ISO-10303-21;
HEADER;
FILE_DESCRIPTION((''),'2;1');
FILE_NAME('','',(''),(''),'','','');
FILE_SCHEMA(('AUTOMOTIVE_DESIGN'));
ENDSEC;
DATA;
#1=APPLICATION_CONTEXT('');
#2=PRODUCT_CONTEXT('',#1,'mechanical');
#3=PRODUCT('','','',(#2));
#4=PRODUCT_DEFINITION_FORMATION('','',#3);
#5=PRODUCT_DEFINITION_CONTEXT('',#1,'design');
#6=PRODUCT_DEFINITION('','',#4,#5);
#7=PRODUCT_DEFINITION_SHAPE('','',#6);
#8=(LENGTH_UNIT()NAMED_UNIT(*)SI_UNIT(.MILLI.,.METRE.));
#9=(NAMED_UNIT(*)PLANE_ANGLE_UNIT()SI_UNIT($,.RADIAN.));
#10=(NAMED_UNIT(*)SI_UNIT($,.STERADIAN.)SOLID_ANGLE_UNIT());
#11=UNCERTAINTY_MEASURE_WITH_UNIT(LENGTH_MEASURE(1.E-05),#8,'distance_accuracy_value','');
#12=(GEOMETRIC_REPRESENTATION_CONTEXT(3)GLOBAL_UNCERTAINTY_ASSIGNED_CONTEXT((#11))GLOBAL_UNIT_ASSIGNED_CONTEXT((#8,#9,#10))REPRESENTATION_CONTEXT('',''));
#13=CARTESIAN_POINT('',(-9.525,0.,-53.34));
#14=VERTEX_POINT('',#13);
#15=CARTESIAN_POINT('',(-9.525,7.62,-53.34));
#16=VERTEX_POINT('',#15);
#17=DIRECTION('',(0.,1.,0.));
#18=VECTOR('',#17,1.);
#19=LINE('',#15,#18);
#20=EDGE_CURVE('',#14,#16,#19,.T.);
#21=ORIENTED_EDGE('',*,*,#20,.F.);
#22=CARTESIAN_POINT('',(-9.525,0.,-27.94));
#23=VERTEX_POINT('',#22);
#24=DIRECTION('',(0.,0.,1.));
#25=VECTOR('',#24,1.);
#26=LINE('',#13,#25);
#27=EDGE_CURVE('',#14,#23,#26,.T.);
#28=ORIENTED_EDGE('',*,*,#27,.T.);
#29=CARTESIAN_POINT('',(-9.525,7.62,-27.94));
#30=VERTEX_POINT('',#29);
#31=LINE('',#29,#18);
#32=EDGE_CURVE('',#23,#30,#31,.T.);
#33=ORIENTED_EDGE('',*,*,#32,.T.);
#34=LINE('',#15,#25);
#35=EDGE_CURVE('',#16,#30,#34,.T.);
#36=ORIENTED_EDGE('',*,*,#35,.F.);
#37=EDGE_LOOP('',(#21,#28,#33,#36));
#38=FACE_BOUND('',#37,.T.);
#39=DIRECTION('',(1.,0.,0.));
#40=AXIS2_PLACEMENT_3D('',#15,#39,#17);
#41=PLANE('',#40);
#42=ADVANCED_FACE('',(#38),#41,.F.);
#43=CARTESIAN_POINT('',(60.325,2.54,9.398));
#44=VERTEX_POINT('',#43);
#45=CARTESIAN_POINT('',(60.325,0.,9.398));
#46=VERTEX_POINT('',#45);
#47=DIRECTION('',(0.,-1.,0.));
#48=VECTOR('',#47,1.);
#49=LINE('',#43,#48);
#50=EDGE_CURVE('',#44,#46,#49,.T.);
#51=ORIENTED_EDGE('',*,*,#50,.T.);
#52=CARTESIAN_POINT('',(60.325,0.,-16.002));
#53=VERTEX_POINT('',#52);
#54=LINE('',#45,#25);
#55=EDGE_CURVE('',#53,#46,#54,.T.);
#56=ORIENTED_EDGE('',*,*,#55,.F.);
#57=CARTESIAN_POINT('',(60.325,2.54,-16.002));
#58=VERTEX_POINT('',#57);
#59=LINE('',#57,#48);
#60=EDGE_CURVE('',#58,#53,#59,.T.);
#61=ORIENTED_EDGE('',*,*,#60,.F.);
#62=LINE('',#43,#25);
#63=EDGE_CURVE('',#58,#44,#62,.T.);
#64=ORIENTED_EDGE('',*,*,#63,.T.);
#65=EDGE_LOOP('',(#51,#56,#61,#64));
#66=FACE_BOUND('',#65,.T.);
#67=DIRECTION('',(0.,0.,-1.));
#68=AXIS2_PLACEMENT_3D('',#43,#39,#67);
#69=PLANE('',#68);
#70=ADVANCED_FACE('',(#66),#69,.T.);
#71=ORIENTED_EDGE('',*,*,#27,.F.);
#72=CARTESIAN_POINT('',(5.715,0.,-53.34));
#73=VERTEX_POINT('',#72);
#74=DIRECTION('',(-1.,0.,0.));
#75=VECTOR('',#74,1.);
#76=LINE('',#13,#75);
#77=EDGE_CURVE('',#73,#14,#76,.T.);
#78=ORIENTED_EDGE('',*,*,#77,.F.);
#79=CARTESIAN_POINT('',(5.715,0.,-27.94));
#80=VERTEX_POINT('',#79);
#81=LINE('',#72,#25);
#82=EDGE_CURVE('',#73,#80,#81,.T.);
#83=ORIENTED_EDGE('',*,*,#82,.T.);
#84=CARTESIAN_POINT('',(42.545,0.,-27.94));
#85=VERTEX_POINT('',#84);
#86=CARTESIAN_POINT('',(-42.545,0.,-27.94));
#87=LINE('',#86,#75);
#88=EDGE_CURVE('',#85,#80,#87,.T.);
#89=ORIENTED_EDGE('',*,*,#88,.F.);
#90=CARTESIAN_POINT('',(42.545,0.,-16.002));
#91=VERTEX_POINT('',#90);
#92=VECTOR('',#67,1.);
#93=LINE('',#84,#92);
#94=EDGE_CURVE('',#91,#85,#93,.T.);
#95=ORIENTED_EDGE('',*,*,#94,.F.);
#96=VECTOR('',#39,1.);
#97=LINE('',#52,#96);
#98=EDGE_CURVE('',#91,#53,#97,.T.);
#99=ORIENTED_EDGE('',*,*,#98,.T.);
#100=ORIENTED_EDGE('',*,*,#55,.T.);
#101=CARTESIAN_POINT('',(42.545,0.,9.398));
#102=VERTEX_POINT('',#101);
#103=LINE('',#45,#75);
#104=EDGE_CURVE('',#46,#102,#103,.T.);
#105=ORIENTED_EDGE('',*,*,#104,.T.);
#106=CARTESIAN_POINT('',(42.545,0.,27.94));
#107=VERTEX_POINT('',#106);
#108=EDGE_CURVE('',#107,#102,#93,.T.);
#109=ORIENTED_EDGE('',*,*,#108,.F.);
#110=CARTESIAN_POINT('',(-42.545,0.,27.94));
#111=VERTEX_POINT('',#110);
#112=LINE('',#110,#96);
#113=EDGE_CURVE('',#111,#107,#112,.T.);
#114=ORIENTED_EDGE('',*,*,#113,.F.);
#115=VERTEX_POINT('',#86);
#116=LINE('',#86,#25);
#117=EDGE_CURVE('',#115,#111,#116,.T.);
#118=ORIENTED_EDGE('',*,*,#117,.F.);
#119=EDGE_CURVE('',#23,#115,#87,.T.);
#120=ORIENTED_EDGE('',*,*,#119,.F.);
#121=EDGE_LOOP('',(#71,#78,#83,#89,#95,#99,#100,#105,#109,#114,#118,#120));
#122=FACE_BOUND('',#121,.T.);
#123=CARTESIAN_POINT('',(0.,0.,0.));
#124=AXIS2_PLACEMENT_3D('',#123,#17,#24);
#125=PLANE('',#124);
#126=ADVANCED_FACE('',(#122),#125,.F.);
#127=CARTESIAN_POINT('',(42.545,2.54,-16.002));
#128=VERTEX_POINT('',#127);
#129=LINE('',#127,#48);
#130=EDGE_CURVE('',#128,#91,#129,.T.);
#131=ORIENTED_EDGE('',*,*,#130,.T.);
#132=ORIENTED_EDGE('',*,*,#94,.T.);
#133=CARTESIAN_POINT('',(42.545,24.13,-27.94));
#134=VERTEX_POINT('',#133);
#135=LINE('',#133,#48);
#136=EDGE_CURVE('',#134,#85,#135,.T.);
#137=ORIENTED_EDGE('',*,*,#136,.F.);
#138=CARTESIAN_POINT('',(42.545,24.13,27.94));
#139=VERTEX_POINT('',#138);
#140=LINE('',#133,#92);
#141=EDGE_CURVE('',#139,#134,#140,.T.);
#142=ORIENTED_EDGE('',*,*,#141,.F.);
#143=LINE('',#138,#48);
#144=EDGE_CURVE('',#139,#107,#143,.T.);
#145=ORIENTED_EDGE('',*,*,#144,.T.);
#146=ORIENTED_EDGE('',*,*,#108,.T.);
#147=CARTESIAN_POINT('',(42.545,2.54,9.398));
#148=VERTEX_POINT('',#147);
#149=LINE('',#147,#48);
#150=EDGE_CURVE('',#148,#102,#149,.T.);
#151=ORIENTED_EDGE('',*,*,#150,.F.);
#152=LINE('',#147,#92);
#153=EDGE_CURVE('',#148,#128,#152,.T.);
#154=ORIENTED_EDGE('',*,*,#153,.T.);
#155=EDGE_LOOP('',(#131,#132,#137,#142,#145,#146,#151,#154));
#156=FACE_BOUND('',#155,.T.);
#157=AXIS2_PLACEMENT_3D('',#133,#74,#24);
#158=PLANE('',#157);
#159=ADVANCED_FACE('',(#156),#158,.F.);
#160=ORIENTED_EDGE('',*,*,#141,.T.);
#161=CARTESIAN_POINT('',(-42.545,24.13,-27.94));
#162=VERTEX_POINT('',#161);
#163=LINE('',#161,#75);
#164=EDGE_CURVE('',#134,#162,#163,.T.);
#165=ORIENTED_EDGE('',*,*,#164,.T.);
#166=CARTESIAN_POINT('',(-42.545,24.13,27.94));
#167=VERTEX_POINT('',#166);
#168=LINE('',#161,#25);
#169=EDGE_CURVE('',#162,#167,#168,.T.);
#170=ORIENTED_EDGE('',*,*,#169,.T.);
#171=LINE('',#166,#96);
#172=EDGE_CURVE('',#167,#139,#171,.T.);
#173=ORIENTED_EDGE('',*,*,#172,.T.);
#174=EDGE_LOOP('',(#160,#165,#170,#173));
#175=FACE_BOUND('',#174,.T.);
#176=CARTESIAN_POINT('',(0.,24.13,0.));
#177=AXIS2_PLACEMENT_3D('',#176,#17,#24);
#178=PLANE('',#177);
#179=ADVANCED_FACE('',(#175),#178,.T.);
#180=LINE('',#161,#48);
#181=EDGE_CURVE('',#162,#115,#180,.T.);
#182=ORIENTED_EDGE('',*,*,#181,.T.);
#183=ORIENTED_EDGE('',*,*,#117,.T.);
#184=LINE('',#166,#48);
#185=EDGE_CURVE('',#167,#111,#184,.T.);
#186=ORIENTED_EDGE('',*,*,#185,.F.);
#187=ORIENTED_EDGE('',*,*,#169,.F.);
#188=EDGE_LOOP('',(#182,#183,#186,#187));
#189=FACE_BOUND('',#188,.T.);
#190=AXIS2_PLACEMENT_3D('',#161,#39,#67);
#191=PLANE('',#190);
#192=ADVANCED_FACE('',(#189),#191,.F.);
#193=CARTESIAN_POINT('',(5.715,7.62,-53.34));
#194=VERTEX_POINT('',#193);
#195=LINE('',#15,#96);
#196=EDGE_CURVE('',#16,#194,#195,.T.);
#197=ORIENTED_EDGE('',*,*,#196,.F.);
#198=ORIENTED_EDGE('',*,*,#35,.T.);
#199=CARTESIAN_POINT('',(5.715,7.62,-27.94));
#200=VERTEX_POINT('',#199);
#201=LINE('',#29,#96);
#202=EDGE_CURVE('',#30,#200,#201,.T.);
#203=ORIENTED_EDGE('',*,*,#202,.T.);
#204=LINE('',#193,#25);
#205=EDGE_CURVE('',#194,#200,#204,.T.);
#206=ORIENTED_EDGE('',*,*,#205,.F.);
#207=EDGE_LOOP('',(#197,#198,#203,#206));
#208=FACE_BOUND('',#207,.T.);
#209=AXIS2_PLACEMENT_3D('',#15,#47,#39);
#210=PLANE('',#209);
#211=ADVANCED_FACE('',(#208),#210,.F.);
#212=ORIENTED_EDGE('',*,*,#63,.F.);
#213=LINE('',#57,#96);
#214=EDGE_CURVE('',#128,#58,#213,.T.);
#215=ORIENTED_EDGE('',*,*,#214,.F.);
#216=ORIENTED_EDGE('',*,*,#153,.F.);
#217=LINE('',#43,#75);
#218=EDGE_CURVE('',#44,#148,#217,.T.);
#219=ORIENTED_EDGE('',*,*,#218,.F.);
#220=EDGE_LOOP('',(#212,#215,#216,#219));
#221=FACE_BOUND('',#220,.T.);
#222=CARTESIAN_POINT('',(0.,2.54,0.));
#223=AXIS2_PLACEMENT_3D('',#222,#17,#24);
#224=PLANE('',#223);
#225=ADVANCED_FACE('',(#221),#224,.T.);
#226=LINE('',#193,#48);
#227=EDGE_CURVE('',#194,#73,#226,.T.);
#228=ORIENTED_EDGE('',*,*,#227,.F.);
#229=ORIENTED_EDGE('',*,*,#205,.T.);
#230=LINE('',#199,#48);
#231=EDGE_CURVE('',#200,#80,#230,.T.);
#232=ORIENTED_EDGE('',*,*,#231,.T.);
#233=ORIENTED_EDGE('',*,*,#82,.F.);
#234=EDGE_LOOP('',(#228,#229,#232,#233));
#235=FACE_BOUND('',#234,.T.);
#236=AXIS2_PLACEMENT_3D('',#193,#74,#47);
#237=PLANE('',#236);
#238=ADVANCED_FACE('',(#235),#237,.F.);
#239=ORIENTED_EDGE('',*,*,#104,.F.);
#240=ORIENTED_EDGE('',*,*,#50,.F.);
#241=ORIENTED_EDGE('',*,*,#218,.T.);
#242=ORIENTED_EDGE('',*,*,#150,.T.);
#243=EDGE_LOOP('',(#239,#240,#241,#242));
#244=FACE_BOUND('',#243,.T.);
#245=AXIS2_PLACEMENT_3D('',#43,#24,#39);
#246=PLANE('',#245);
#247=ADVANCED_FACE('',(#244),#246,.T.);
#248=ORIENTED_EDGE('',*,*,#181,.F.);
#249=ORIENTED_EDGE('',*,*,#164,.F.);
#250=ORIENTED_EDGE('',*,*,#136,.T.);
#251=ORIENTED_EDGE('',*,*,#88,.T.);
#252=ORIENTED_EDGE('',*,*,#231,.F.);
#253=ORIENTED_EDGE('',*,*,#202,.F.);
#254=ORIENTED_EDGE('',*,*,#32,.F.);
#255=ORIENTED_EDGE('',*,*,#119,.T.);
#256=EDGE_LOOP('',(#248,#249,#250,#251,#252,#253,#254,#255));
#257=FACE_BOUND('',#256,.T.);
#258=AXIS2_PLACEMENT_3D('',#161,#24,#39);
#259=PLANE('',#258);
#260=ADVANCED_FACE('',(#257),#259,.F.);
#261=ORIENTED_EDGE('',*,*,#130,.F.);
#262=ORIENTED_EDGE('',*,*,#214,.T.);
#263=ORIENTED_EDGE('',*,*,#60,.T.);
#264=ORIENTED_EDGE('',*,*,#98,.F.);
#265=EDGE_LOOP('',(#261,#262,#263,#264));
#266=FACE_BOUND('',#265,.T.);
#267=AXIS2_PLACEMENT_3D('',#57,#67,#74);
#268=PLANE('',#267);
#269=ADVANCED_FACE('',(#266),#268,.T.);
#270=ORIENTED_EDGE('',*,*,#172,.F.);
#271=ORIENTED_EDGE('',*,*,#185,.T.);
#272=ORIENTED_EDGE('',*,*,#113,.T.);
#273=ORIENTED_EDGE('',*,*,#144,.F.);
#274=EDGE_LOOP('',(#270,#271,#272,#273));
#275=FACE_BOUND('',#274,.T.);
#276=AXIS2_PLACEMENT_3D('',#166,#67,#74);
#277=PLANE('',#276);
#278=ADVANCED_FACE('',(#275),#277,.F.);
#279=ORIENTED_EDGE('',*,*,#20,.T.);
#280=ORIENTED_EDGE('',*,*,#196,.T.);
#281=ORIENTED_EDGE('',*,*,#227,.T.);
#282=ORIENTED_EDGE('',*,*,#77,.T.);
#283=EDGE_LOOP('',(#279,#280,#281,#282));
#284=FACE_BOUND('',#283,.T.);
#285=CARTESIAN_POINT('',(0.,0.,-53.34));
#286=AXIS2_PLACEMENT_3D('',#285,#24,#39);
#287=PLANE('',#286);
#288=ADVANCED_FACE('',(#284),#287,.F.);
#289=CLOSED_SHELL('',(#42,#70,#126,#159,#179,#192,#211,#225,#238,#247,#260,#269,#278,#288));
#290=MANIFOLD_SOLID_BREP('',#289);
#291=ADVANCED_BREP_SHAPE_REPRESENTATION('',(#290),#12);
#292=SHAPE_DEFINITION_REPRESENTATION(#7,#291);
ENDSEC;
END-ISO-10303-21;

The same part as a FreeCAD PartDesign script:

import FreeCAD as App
import Part
import Sketcher

V = App.Vector
Q = App.Units.Quantity


def add_polygon(sketch, points):
    """Adds a closed chain of lines whose ends are joined by coincident constraints."""
    first, n = sketch.GeometryCount, len(points)
    for a, b in zip(points, points[1:] + points[:1]):
        sketch.addGeometry(Part.LineSegment(App.Vector(*a, 0), App.Vector(*b, 0)), False)
    for i in range(n):
        sketch.addConstraint(Sketcher.Constraint("Coincident", first + i, 2, first + (i + 1) % n, 1))

doc = App.newDocument("Part")
body = doc.addObject("PartDesign::Body", "Body")

sketch1 = body.newObject("Sketcher::SketchObject", "Sketch")
sketch1.AttachmentSupport = (doc.getObject("XZ_Plane"), [""])
sketch1.MapMode = "FlatFace"
add_polygon(sketch1, [(-43, -28), (-43, 28), (43, 28), (43, -28)])
sketch1.addConstraint([
    Sketcher.Constraint("Vertical", 0),
    Sketcher.Constraint("Horizontal", 1),
    Sketcher.Constraint("Vertical", 2),
    Sketcher.Constraint("Horizontal", 3),
    Sketcher.Constraint("Symmetric", 0, 2, 2, 2, -1, 1),
    Sketcher.Constraint("DistanceY", 0, 1, 0, 2, Q("2.2 in")),
    Sketcher.Constraint("DistanceX", 1, 1, 1, 2, Q("3.35 in")),
])
pad1 = body.newObject("PartDesign::Pad", "Pad")
pad1.Profile = sketch1
pad1.Length = Q("0.95 in")
pad1.Reversed = True

sketch2 = body.newObject("Sketcher::SketchObject", "Sketch001")
sketch2.AttachmentSupport = (doc.getObject("XZ_Plane"), [""])
sketch2.MapMode = "FlatFace"
add_polygon(sketch2, [(43, 9), (43, -16), (60, -16), (60, 9)])
sketch2.addConstraint([
    Sketcher.Constraint("Vertical", 0),
    Sketcher.Constraint("Horizontal", 1),
    Sketcher.Constraint("Vertical", 2),
    Sketcher.Constraint("Horizontal", 3),
    Sketcher.Constraint("DistanceY", 0, 2, 0, 1, Q("1 in")),
    Sketcher.Constraint("DistanceX", 1, 1, 1, 2, Q("0.7 in")),
    Sketcher.Constraint("DistanceY", 0, 2, -1, 1, Q("0.63 in")),
    Sketcher.Constraint("DistanceX", -1, 1, 0, 2, Q("1.675 in")),
])
pad2 = body.newObject("PartDesign::Pad", "Pad001")
pad2.Profile = sketch2
pad2.Length = Q("0.1 in")
pad2.Reversed = True

sketch3 = body.newObject("Sketcher::SketchObject", "Sketch002")
sketch3.AttachmentSupport = (doc.getObject("XY_Plane"), [""])
sketch3.MapMode = "FlatFace"
sketch3.AttachmentOffset = App.Placement(V(0, 0, -1.1 * 25.4), App.Rotation())
add_polygon(sketch3, [(6, 8), (6, 0), (-10, 0), (-10, 8)])
sketch3.addConstraint([
    Sketcher.Constraint("Vertical", 0),
    Sketcher.Constraint("Horizontal", 1),
    Sketcher.Constraint("Vertical", 2),
    Sketcher.Constraint("Horizontal", 3),
    Sketcher.Constraint("PointOnObject", 0, 2, -1),
    Sketcher.Constraint("DistanceX", 1, 2, 1, 1, Q("0.6 in")),
    Sketcher.Constraint("DistanceY", 0, 2, 0, 1, Q("0.3 in")),
    Sketcher.Constraint("DistanceX", -1, 1, 0, 2, Q("0.225 in")),
])
pad3 = body.newObject("PartDesign::Pad", "Pad002")
pad3.Profile = sketch3
pad3.Length = Q("1 in")
pad3.Reversed = True

doc.recompute()
